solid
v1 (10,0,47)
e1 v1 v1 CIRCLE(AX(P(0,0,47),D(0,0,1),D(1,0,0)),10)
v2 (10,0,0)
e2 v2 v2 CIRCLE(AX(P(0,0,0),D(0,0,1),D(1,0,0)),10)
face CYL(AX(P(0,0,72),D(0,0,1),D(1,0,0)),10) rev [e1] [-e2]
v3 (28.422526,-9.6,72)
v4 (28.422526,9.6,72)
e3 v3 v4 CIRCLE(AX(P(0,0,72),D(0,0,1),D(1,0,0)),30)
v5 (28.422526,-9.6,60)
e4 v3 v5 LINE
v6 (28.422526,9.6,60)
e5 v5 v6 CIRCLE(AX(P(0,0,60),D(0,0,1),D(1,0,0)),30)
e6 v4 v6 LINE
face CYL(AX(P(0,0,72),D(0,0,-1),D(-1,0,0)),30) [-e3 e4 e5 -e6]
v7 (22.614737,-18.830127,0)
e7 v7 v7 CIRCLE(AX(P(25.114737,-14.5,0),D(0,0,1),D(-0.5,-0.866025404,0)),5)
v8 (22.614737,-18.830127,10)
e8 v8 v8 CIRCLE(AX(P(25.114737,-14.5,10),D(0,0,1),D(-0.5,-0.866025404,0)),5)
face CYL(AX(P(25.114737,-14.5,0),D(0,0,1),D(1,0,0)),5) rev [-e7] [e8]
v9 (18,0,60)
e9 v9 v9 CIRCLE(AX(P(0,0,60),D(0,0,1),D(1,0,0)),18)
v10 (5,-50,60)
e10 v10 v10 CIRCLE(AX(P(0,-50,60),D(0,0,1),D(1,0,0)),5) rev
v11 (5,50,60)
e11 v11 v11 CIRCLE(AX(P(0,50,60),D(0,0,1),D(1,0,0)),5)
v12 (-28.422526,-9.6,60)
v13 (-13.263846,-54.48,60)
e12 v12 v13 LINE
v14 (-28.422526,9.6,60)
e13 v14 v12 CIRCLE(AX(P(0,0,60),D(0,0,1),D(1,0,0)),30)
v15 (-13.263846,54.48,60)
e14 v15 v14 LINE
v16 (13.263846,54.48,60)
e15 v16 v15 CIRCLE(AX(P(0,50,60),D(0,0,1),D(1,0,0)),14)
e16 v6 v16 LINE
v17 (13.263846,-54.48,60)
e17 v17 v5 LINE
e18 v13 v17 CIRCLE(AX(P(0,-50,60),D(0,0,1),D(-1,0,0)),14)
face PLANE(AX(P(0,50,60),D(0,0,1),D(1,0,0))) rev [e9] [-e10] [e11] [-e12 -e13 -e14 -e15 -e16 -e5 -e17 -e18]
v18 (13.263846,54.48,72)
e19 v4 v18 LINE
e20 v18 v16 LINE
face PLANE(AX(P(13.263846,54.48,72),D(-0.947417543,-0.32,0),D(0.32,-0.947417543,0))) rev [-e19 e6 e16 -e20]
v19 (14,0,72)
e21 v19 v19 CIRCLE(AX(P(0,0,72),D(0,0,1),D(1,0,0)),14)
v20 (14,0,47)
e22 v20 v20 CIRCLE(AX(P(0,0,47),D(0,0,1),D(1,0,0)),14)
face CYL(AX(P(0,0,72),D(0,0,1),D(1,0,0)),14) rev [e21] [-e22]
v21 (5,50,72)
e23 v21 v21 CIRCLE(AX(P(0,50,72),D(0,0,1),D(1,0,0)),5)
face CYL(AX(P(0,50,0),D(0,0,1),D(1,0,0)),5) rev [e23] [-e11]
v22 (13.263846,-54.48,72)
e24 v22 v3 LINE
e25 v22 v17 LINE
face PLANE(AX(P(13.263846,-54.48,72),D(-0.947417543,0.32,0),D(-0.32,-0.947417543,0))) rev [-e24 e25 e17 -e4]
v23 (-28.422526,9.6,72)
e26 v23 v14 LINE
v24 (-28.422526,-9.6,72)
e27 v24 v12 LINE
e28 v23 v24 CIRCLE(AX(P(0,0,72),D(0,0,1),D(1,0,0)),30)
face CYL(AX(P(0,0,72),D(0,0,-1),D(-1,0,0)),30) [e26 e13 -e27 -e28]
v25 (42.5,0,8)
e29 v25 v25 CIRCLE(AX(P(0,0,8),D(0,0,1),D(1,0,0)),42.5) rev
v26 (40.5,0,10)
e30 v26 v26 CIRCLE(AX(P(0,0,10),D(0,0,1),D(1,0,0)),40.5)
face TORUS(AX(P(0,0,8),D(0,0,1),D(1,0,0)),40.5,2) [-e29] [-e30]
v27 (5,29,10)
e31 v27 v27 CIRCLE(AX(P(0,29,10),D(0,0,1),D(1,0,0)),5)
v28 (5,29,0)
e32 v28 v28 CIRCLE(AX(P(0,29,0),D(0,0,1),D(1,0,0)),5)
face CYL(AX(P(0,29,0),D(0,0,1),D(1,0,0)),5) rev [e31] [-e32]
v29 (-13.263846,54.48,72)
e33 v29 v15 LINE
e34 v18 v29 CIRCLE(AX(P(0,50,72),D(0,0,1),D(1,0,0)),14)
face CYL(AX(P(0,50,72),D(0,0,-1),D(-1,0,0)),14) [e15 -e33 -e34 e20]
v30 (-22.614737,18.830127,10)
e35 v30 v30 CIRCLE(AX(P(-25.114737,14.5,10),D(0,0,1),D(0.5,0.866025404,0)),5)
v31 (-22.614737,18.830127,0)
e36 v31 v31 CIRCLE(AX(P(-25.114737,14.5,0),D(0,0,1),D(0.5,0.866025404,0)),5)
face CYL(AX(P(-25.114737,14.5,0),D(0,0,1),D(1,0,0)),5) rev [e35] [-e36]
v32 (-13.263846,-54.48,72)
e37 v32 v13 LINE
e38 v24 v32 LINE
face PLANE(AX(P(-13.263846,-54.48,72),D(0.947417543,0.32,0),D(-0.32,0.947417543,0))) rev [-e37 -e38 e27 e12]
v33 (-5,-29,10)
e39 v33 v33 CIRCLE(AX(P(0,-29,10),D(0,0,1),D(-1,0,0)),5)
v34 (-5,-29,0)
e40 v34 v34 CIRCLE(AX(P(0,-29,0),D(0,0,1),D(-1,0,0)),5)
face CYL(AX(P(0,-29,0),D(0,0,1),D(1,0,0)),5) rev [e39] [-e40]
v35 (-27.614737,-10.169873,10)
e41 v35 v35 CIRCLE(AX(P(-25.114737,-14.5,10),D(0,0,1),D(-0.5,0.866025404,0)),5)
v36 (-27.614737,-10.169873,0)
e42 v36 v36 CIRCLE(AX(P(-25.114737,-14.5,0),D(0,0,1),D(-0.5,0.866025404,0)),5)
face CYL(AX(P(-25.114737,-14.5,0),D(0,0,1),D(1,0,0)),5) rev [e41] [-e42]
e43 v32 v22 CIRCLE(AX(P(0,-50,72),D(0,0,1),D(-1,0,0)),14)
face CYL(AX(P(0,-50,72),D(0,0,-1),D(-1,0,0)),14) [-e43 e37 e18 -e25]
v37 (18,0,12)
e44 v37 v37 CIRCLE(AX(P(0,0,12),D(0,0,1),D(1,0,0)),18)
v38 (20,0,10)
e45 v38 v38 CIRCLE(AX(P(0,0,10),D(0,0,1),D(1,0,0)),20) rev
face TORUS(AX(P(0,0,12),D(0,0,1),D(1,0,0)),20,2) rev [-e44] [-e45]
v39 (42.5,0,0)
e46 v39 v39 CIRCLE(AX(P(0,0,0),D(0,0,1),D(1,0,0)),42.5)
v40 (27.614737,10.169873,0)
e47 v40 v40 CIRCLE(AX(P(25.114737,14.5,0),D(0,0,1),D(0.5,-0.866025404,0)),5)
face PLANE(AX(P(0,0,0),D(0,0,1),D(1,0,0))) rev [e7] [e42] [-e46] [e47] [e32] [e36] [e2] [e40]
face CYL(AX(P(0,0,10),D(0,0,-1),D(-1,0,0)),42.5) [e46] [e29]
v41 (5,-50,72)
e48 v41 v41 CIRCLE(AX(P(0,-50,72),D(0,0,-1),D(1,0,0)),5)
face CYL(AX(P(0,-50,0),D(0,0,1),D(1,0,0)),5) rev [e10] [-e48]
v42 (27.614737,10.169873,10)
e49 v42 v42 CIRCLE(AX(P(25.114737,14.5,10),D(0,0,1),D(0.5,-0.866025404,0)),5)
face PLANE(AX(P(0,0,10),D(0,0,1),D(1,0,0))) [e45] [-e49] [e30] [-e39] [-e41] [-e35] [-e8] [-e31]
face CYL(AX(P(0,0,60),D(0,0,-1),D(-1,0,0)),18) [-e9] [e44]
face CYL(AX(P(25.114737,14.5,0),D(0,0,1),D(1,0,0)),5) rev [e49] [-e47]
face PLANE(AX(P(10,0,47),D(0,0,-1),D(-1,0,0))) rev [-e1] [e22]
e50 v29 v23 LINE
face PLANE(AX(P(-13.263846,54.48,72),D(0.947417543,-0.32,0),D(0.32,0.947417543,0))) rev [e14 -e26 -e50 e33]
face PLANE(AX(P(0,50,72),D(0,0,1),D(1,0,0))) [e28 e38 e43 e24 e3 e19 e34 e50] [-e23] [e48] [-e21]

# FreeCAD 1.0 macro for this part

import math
import FreeCAD as App
import Part
import Sketcher
from FreeCAD import Vector
Q = App.Units.Quantity


def edges_at(feature, points):
    """Names of the edges that pass closest to the given points."""
    edges = feature.Shape.Edges
    near = lambda p: min(range(len(edges)), key=lambda i: edges[i].distToShape(Part.Vertex(*p))[0])
    return sorted({f"Edge{near(p) + 1}" for p in points})

doc = App.newDocument("Part")
body = doc.addObject("PartDesign::Body", "Body")

# Sketch on XY plane
sketch1 = body.newObject("Sketcher::SketchObject", "Sketch")
sketch1.AttachmentSupport = (doc.getObject("XY_Plane"), [""])
sketch1.MapMode = "FlatFace"
sketch1.addGeometry(Part.Circle(Vector(0, 0, 0), Vector(0, 0, 1), 42.5), False)
sketch1.addConstraint([
    Sketcher.Constraint("Coincident", 0, 3, -1, 1),
    Sketcher.Constraint("Diameter", 0, Q("85 mm")),
])
pad1 = body.newObject("PartDesign::Pad", "Pad")
pad1.Profile = sketch1
pad1.Length = 10

# Sketch on XY plane
sketch2 = body.newObject("Sketcher::SketchObject", "Sketch001")
sketch2.AttachmentSupport = (doc.getObject("XY_Plane"), [""])
sketch2.MapMode = "FlatFace"
sketch2.AttachmentOffset = App.Placement(Vector(0, 0, 10), App.Rotation())
sketch2.addGeometry(Part.Circle(Vector(0, 29, 0), Vector(0, 0, 1), 5), False)
sketch2.addConstraint([
    Sketcher.Constraint("PointOnObject", 0, 3, -2),
    Sketcher.Constraint("Diameter", 0, Q("10 mm")),
    Sketcher.Constraint("DistanceY", -1, 1, 0, 3, Q("29 mm")),
])
pocket1 = body.newObject("PartDesign::Pocket", "Pocket")
pocket1.Profile = sketch2
pocket1.Type = "ThroughAll"
doc.recompute()

polarpattern = body.newObject("PartDesign::PolarPattern", "PolarPattern")
polarpattern.Originals = [pocket1]
polarpattern.Axis = (doc.getObject("Z_Axis"), [""])
polarpattern.Angle = 360
polarpattern.Occurrences = 6
body.Tip = polarpattern

# Sketch on XY plane
sketch3 = body.newObject("Sketcher::SketchObject", "Sketch002")
sketch3.AttachmentSupport = (doc.getObject("XY_Plane"), [""])
sketch3.MapMode = "FlatFace"
sketch3.AttachmentOffset = App.Placement(Vector(0, 0, 10), App.Rotation())
sketch3.addGeometry(Part.Circle(Vector(0, 0, 0), Vector(0, 0, 1), 18), False)
sketch3.addConstraint([
    Sketcher.Constraint("Coincident", 0, 3, -1, 1),
    Sketcher.Constraint("Diameter", 0, Q("36 mm")),
])
pad2 = body.newObject("PartDesign::Pad", "Pad001")
pad2.Profile = sketch3
pad2.Length = 50

# Sketch on XY plane
sketch4 = body.newObject("Sketcher::SketchObject", "Sketch003")
sketch4.AttachmentSupport = (doc.getObject("XY_Plane"), [""])
sketch4.MapMode = "FlatFace"
sketch4.AttachmentOffset = App.Placement(Vector(0, 0, 60), App.Rotation())
sketch4.addGeometry([
    Part.LineSegment(Vector(-13.263846, 54.48, 0), Vector(-28.422526, 9.6, 0)),  # 0
    Part.ArcOfCircle(Part.Circle(Vector(0, 0, 0), Vector(0, 0, 1), 30), math.radians(161.337075), math.radians(198.662925)),  # 1
    Part.LineSegment(Vector(-28.422526, -9.6, 0), Vector(-13.263846, -54.48, 0)),  # 2
    Part.ArcOfCircle(Part.Circle(Vector(0, -50, 0), Vector(0, 0, 1), 14), math.radians(-161.337075), math.radians(-18.662925)),  # 3
    Part.LineSegment(Vector(13.263846, -54.48, 0), Vector(28.422526, -9.6, 0)),  # 4
    Part.ArcOfCircle(Part.Circle(Vector(0, 0, 0), Vector(0, 0, 1), 30), math.radians(-18.662925), math.radians(18.662925)),  # 5
    Part.LineSegment(Vector(28.422526, 9.6, 0), Vector(13.263846, 54.48, 0)),  # 6
    Part.ArcOfCircle(Part.Circle(Vector(0, 50, 0), Vector(0, 0, 1), 14), math.radians(18.662925), math.radians(161.337075)),  # 7
], False)
sketch4.addConstraint([
    Sketcher.Constraint("Tangent", 0, 2, 1, 1),
    Sketcher.Constraint("Tangent", 1, 2, 2, 1),
    Sketcher.Constraint("Tangent", 2, 2, 3, 1),
    Sketcher.Constraint("Tangent", 3, 2, 4, 1),
    Sketcher.Constraint("Tangent", 4, 2, 5, 1),
    Sketcher.Constraint("Tangent", 5, 2, 6, 1),
    Sketcher.Constraint("Tangent", 6, 2, 7, 1),
    Sketcher.Constraint("Tangent", 7, 2, 0, 1),
    Sketcher.Constraint("Coincident", 1, 3, -1, 1),
    Sketcher.Constraint("Coincident", 5, 3, -1, 1),
    Sketcher.Constraint("Equal", 1, 5),
    Sketcher.Constraint("Equal", 3, 7),
    Sketcher.Constraint("Symmetric", 3, 3, 7, 3, -1, 1),
    Sketcher.Constraint("PointOnObject", 3, 3, -2),
    Sketcher.Constraint("Radius", 1, Q("30 mm")),
    Sketcher.Constraint("Radius", 3, Q("14 mm")),
    Sketcher.Constraint("DistanceY", 3, 3, -1, 1, Q("50 mm")),
])
pad3 = body.newObject("PartDesign::Pad", "Pad002")
pad3.Profile = sketch4
pad3.Length = 12

# Sketch on XY plane
sketch5 = body.newObject("Sketcher::SketchObject", "Sketch004")
sketch5.AttachmentSupport = (doc.getObject("XY_Plane"), [""])
sketch5.MapMode = "FlatFace"
sketch5.AttachmentOffset = App.Placement(Vector(0, 0, 72), App.Rotation())
sketch5.addGeometry(Part.Circle(Vector(0, 50, 0), Vector(0, 0, 1), 5), False)
sketch5.addConstraint([
    Sketcher.Constraint("PointOnObject", 0, 3, -2),
    Sketcher.Constraint("Diameter", 0, Q("10 mm")),
    Sketcher.Constraint("DistanceY", -1, 1, 0, 3, Q("50 mm")),
])
pocket2 = body.newObject("PartDesign::Pocket", "Pocket001")
pocket2.Profile = sketch5
pocket2.Type = "ThroughAll"
doc.recompute()

mirrored = body.newObject("PartDesign::Mirrored", "Mirrored")
mirrored.Originals = [pocket2]
mirrored.MirrorPlane = (doc.getObject("XZ_Plane"), [""])
body.Tip = mirrored

# Sketch on XY plane
sketch6 = body.newObject("Sketcher::SketchObject", "Sketch005")
sketch6.AttachmentSupport = (doc.getObject("XY_Plane"), [""])
sketch6.MapMode = "FlatFace"
sketch6.AttachmentOffset = App.Placement(Vector(0, 0, 72), App.Rotation())
sketch6.addGeometry(Part.Circle(Vector(0, 0, 0), Vector(0, 0, 1), 10), False)
sketch6.addConstraint([
    Sketcher.Constraint("Coincident", 0, 3, -1, 1),
    Sketcher.Constraint("Diameter", 0, Q("20 mm")),
])
doc.recompute()
hole = body.newObject("PartDesign::Hole", "Hole")
hole.Profile = sketch6
hole.ThreadType = "None"
hole.Diameter = 20
hole.DepthType = "ThroughAll"
hole.HoleCutType = "Counterbore"
hole.HoleCutDiameter = 28
hole.HoleCutDepth = 25
doc.recompute()

fillet = body.newObject("PartDesign::Fillet", "Fillet")
fillet.Base = (hole, edges_at(hole, [(-18, 0, 10), (-42.5, 0, 10)]))
fillet.Radius = 2

doc.recompute()
